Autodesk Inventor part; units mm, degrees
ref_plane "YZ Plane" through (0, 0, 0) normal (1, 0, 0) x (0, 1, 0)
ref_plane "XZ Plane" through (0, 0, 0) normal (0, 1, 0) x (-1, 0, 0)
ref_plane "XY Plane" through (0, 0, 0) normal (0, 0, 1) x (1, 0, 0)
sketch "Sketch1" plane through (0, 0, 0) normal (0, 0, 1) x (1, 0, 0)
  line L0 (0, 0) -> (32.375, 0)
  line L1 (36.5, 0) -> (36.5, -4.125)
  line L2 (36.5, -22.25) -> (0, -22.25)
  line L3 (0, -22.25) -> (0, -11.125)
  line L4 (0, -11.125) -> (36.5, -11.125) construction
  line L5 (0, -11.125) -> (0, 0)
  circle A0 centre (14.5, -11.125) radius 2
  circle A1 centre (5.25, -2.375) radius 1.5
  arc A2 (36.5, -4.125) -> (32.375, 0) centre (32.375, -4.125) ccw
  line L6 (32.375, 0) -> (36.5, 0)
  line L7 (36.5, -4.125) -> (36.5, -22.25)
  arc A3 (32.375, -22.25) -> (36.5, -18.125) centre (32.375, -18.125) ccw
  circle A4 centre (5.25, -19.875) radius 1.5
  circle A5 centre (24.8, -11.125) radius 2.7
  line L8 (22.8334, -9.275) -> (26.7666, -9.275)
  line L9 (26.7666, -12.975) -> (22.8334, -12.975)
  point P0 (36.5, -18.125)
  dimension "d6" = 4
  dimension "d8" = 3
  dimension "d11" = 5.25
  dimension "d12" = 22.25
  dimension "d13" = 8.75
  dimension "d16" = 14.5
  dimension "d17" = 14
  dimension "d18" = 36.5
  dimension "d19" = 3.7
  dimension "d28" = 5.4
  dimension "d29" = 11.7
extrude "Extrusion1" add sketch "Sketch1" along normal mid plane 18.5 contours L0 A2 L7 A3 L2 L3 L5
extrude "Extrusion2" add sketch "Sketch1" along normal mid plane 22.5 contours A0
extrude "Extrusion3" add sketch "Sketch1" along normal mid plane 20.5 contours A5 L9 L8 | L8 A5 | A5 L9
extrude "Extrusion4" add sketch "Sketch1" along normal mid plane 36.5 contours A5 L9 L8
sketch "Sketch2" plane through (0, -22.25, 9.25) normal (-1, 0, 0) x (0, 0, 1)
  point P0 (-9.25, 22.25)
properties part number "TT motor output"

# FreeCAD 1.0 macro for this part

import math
import FreeCAD as App
import Part
import Sketcher
Q = App.Units.Quantity

doc = App.newDocument("Part")
body = doc.addObject("PartDesign::Body", "Body")

# Sketch on XY plane
sketch1 = body.newObject("Sketcher::SketchObject", "Sketch")
sketch1.AttachmentSupport = (doc.getObject("XY_Plane"), [""])
sketch1.MapMode = "FlatFace"
sketch1.addGeometry(Part.LineSegment(App.Vector(32.375, 0, 0), App.Vector(0, 0, 0)), False)
sketch1.addGeometry(Part.LineSegment(App.Vector(0, 0, 0), App.Vector(0, -22.25, 0)), False)
sketch1.addGeometry(Part.LineSegment(App.Vector(0, -22.25, 0), App.Vector(32.375, -22.25, 0)), False)
sketch1.addGeometry(Part.ArcOfCircle(Part.Circle(App.Vector(32.375, -18.125, 0), App.Vector(0, 0, 1), 4.125), math.radians(-90), math.radians(0)), False)
sketch1.addGeometry(Part.LineSegment(App.Vector(36.5, -18.125, 0), App.Vector(36.5, -4.125, 0)), False)
sketch1.addGeometry(Part.ArcOfCircle(Part.Circle(App.Vector(32.375, -4.125, 0), App.Vector(0, 0, 1), 4.125), math.radians(0), math.radians(90)), False)
sketch1.addGeometry(Part.Circle(App.Vector(5.25, -19.875, 0), App.Vector(0, 0, 1), 1.5), False)
sketch1.addGeometry(Part.Circle(App.Vector(14.5, -11.125, 0), App.Vector(0, 0, 1), 2), False)
sketch1.addGeometry(Part.Circle(App.Vector(5.25, -2.375, 0), App.Vector(0, 0, 1), 1.5), False)
sketch1.addGeometry(Part.Circle(App.Vector(24.8, -11.125, 0), App.Vector(0, 0, 1), 2.7), False)
sketch1.addConstraint(Sketcher.Constraint("Coincident", 0, 2, 1, 1))
sketch1.addConstraint(Sketcher.Constraint("Coincident", 1, 2, 2, 1))
sketch1.addConstraint(Sketcher.Constraint("Tangent", 2, 2, 3, 1))
sketch1.addConstraint(Sketcher.Constraint("Tangent", 3, 2, 4, 1))
sketch1.addConstraint(Sketcher.Constraint("Tangent", 4, 2, 5, 1))
sketch1.addConstraint(Sketcher.Constraint("Tangent", 5, 2, 0, 1))
sketch1.addConstraint(Sketcher.Constraint("Horizontal", 0))
sketch1.addConstraint(Sketcher.Constraint("Vertical", 1))
sketch1.addConstraint(Sketcher.Constraint("Horizontal", 2))
sketch1.addConstraint(Sketcher.Constraint("Vertical", 4))
sketch1.addConstraint(Sketcher.Constraint("Coincident", 0, 2, -1, 1))
sketch1.addConstraint(Sketcher.Constraint("Equal", 3, 5))
sketch1.addConstraint(Sketcher.Constraint("Equal", 6, 8))
sketch1.addConstraint(Sketcher.Constraint("Horizontal", 7, 3, 9, 3))
sketch1.addConstraint(Sketcher.Constraint("Vertical", 6, 3, 8, 3))
sketch1.addConstraint(Sketcher.Constraint("Diameter", 6, Q("3 mm")))
sketch1.addConstraint(Sketcher.Constraint("Diameter", 7, Q("4 mm")))
sketch1.addConstraint(Sketcher.Constraint("Diameter", 9, Q("5.4 mm")))
sketch1.addConstraint(Sketcher.Constraint("DistanceY", 4, 1, 4, 2, Q("14 mm")))
sketch1.addConstraint(Sketcher.Constraint("DistanceY", 1, 2, 1, 1, Q("22.25 mm")))
sketch1.addConstraint(Sketcher.Constraint("DistanceX", -1, 1, 7, 3, Q("14.5 mm")))
sketch1.addConstraint(Sketcher.Constraint("DistanceX", -1, 1, 3, 2, Q("36.5 mm")))
sketch1.addConstraint(Sketcher.Constraint("DistanceX", 9, 3, 3, 2, Q("11.7 mm")))
sketch1.addConstraint(Sketcher.Constraint("DistanceX", -1, 1, 6, 3, Q("5.25 mm")))
sketch1.addConstraint(Sketcher.Constraint("DistanceY", 6, 3, 7, 3, Q("8.75 mm")))
sketch1.addConstraint(Sketcher.Constraint("DistanceY", 7, 3, 8, 3, Q("8.75 mm")))
sketch1.addConstraint(Sketcher.Constraint("DistanceY", 3, 3, 7, 3, Q("7 mm")))
pad1 = body.newObject("PartDesign::Pad", "Pad")
pad1.Profile = sketch1
pad1.Length = 18.5
pad1.Midplane = True

# Sketch on XY plane
sketch2 = body.newObject("Sketcher::SketchObject", "Sketch001")
sketch2.AttachmentSupport = (doc.getObject("XY_Plane"), [""])
sketch2.MapMode = "FlatFace"
sketch2.addGeometry(Part.Circle(App.Vector(14.5, -11.125, 0), App.Vector(0, 0, 1), 2), False)
sketch2.addConstraint(Sketcher.Constraint("Diameter", 0, Q("4 mm")))
sketch2.addConstraint(Sketcher.Constraint("DistanceX", -1, 1, 0, 3, Q("14.5 mm")))
sketch2.addConstraint(Sketcher.Constraint("DistanceY", 0, 3, -1, 1, Q("11.125 mm")))
pad2 = body.newObject("PartDesign::Pad", "Pad001")
pad2.Profile = sketch2
pad2.Length = 22.5
pad2.Midplane = True

# Sketch on XY plane
sketch3 = body.newObject("Sketcher::SketchObject", "Sketch002")
sketch3.AttachmentSupport = (doc.getObject("XY_Plane"), [""])
sketch3.MapMode = "FlatFace"
sketch3.addGeometry(Part.Circle(App.Vector(24.8, -11.125, 0), App.Vector(0, 0, 1), 2.7), False)
sketch3.addConstraint(Sketcher.Constraint("Diameter", 0, Q("5.4 mm")))
sketch3.addConstraint(Sketcher.Constraint("DistanceX", -1, 1, 0, 3, Q("24.8 mm")))
sketch3.addConstraint(Sketcher.Constraint("DistanceY", 0, 3, -1, 1, Q("11.125 mm")))
pad3 = body.newObject("PartDesign::Pad", "Pad002")
pad3.Profile = sketch3
pad3.Length = 20.5
pad3.Midplane = True

# Sketch on XY plane
sketch4 = body.newObject("Sketcher::SketchObject", "Sketch003")
sketch4.AttachmentSupport = (doc.getObject("XY_Plane"), [""])
sketch4.MapMode = "FlatFace"
sketch4.addGeometry(Part.ArcOfCircle(Part.Circle(App.Vector(24.8, -11.125, 0), App.Vector(0, 0, 1), 2.7), math.radians(-43.250115), math.radians(43.250115)), False)
sketch4.addGeometry(Part.LineSegment(App.Vector(26.7666, -9.275, 0), App.Vector(22.8334, -9.275, 0)), False)
sketch4.addGeometry(Part.ArcOfCircle(Part.Circle(App.Vector(24.8, -11.125, 0), App.Vector(0, 0, 1), 2.7), math.radians(136.749885), math.radians(223.250115)), False)
sketch4.addGeometry(Part.LineSegment(App.Vector(22.8334, -12.975, 0), App.Vector(26.7666, -12.975, 0)), False)
sketch4.addConstraint(Sketcher.Constraint("Coincident", 0, 2, 1, 1))
sketch4.addConstraint(Sketcher.Constraint("Coincident", 1, 2, 2, 1))
sketch4.addConstraint(Sketcher.Constraint("Coincident", 2, 2, 3, 1))
sketch4.addConstraint(Sketcher.Constraint("Coincident", 3, 2, 0, 1))
sketch4.addConstraint(Sketcher.Constraint("Horizontal", 1))
sketch4.addConstraint(Sketcher.Constraint("Horizontal", 3))
sketch4.addConstraint(Sketcher.Constraint("Coincident", 2, 3, 0, 3))
sketch4.addConstraint(Sketcher.Constraint("Equal", 0, 2))
sketch4.addConstraint(Sketcher.Constraint("Vertical", 1, 2, 2, 2))
sketch4.addConstraint(Sketcher.Constraint("Radius", 0, Q("2.7 mm")))
sketch4.addConstraint(Sketcher.Constraint("DistanceY", 2, 2, 1, 2, Q("3.7 mm")))
sketch4.addConstraint(Sketcher.Constraint("DistanceX", -1, 1, 0, 3, Q("24.8 mm")))
sketch4.addConstraint(Sketcher.Constraint("DistanceY", 0, 3, -1, 1, Q("11.125 mm")))
pad4 = body.newObject("PartDesign::Pad", "Pad003")
pad4.Profile = sketch4
pad4.Length = 36.5
pad4.Midplane = True

doc.recompute()
